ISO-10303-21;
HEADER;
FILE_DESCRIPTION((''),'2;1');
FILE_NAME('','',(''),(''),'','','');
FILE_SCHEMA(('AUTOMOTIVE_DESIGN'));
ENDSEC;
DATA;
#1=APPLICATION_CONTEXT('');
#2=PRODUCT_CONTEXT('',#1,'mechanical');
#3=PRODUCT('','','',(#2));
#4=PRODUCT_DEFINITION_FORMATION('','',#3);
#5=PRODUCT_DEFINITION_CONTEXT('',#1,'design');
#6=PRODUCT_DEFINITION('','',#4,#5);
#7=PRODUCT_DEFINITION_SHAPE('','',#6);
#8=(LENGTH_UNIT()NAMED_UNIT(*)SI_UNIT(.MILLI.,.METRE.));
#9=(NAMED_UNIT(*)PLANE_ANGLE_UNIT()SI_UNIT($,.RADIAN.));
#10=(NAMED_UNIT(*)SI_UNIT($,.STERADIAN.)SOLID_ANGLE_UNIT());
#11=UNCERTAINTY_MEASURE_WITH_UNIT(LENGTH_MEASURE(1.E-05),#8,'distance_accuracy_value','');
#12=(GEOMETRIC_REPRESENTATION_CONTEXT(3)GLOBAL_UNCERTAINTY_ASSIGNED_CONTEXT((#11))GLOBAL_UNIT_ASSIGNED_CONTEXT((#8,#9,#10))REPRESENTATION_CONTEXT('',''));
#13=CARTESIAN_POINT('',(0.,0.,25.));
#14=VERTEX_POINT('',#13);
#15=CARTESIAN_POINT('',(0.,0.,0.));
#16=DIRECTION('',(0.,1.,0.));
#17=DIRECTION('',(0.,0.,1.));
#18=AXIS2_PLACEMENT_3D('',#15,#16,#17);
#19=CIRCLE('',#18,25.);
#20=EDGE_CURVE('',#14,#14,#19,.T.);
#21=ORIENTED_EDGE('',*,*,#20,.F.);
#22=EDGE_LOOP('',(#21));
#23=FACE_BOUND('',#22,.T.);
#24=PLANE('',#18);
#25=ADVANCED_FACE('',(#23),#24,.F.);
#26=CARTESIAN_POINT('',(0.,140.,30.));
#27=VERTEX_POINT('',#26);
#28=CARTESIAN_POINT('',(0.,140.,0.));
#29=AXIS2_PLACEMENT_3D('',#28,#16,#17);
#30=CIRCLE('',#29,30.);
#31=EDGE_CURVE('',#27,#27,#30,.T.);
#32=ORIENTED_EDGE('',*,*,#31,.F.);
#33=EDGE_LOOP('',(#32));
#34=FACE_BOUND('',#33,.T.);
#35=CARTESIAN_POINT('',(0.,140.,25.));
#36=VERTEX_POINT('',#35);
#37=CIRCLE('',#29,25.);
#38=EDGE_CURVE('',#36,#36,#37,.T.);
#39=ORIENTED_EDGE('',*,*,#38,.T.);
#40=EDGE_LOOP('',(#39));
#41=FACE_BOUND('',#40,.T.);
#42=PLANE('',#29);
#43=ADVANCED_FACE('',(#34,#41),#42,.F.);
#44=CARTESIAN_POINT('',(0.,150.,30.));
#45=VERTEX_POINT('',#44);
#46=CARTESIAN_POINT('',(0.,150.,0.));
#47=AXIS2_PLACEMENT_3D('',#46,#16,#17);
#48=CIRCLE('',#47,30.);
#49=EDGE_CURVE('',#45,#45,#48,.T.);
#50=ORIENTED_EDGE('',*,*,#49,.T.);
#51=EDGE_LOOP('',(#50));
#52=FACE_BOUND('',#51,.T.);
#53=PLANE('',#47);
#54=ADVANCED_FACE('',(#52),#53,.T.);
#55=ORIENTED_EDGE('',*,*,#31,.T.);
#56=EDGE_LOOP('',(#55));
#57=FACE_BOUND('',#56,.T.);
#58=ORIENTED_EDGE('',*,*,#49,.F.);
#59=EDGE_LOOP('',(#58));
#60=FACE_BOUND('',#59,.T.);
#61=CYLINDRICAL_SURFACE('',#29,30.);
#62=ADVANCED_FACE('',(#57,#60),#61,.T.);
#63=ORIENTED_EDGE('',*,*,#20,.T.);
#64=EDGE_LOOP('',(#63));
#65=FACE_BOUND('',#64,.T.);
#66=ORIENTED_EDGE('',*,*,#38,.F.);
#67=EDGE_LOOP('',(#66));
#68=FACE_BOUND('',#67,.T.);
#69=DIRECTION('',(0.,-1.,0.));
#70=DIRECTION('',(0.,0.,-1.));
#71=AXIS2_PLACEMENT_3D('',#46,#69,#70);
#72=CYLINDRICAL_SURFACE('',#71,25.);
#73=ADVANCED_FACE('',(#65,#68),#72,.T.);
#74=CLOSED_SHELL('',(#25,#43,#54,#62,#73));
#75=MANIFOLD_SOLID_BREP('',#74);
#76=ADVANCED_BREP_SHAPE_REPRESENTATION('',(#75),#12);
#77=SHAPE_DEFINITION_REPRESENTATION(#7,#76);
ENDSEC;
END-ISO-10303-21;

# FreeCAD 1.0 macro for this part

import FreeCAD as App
import Part
import Sketcher

V = App.Vector
Q = App.Units.Quantity

doc = App.newDocument("Part")
body = doc.addObject("PartDesign::Body", "Body")

# Sketch on XZ plane
sketch1 = body.newObject("Sketcher::SketchObject", "Sketch")
sketch1.AttachmentSupport = (doc.getObject("XZ_Plane"), [""])
sketch1.MapMode = "FlatFace"
sketch1.addGeometry(Part.Circle(V(0, 0, 0), V(0, 0, 1), 25), False)
sketch1.addConstraint(Sketcher.Constraint("Coincident", 0, 3, -1, 1))
sketch1.addConstraint(Sketcher.Constraint("Diameter", 0, Q("50 mm")))
pad1 = body.newObject("PartDesign::Pad", "Pad")
pad1.Profile = sketch1
pad1.Length = 150
pad1.Reversed = True

# Sketch on XZ plane
sketch2 = body.newObject("Sketcher::SketchObject", "Sketch001")
sketch2.AttachmentSupport = (doc.getObject("XZ_Plane"), [""])
sketch2.MapMode = "FlatFace"
sketch2.AttachmentOffset = App.Placement(V(0, 0, -150), App.Rotation())
sketch2.addGeometry(Part.Circle(V(0, 0, 0), V(0, 0, 1), 30), False)
sketch2.addConstraint(Sketcher.Constraint("Coincident", 0, 3, -1, 1))
sketch2.addConstraint(Sketcher.Constraint("Diameter", 0, Q("60 mm")))
pad2 = body.newObject("PartDesign::Pad", "Pad001")
pad2.Profile = sketch2
pad2.Length = 10

doc.recompute()
